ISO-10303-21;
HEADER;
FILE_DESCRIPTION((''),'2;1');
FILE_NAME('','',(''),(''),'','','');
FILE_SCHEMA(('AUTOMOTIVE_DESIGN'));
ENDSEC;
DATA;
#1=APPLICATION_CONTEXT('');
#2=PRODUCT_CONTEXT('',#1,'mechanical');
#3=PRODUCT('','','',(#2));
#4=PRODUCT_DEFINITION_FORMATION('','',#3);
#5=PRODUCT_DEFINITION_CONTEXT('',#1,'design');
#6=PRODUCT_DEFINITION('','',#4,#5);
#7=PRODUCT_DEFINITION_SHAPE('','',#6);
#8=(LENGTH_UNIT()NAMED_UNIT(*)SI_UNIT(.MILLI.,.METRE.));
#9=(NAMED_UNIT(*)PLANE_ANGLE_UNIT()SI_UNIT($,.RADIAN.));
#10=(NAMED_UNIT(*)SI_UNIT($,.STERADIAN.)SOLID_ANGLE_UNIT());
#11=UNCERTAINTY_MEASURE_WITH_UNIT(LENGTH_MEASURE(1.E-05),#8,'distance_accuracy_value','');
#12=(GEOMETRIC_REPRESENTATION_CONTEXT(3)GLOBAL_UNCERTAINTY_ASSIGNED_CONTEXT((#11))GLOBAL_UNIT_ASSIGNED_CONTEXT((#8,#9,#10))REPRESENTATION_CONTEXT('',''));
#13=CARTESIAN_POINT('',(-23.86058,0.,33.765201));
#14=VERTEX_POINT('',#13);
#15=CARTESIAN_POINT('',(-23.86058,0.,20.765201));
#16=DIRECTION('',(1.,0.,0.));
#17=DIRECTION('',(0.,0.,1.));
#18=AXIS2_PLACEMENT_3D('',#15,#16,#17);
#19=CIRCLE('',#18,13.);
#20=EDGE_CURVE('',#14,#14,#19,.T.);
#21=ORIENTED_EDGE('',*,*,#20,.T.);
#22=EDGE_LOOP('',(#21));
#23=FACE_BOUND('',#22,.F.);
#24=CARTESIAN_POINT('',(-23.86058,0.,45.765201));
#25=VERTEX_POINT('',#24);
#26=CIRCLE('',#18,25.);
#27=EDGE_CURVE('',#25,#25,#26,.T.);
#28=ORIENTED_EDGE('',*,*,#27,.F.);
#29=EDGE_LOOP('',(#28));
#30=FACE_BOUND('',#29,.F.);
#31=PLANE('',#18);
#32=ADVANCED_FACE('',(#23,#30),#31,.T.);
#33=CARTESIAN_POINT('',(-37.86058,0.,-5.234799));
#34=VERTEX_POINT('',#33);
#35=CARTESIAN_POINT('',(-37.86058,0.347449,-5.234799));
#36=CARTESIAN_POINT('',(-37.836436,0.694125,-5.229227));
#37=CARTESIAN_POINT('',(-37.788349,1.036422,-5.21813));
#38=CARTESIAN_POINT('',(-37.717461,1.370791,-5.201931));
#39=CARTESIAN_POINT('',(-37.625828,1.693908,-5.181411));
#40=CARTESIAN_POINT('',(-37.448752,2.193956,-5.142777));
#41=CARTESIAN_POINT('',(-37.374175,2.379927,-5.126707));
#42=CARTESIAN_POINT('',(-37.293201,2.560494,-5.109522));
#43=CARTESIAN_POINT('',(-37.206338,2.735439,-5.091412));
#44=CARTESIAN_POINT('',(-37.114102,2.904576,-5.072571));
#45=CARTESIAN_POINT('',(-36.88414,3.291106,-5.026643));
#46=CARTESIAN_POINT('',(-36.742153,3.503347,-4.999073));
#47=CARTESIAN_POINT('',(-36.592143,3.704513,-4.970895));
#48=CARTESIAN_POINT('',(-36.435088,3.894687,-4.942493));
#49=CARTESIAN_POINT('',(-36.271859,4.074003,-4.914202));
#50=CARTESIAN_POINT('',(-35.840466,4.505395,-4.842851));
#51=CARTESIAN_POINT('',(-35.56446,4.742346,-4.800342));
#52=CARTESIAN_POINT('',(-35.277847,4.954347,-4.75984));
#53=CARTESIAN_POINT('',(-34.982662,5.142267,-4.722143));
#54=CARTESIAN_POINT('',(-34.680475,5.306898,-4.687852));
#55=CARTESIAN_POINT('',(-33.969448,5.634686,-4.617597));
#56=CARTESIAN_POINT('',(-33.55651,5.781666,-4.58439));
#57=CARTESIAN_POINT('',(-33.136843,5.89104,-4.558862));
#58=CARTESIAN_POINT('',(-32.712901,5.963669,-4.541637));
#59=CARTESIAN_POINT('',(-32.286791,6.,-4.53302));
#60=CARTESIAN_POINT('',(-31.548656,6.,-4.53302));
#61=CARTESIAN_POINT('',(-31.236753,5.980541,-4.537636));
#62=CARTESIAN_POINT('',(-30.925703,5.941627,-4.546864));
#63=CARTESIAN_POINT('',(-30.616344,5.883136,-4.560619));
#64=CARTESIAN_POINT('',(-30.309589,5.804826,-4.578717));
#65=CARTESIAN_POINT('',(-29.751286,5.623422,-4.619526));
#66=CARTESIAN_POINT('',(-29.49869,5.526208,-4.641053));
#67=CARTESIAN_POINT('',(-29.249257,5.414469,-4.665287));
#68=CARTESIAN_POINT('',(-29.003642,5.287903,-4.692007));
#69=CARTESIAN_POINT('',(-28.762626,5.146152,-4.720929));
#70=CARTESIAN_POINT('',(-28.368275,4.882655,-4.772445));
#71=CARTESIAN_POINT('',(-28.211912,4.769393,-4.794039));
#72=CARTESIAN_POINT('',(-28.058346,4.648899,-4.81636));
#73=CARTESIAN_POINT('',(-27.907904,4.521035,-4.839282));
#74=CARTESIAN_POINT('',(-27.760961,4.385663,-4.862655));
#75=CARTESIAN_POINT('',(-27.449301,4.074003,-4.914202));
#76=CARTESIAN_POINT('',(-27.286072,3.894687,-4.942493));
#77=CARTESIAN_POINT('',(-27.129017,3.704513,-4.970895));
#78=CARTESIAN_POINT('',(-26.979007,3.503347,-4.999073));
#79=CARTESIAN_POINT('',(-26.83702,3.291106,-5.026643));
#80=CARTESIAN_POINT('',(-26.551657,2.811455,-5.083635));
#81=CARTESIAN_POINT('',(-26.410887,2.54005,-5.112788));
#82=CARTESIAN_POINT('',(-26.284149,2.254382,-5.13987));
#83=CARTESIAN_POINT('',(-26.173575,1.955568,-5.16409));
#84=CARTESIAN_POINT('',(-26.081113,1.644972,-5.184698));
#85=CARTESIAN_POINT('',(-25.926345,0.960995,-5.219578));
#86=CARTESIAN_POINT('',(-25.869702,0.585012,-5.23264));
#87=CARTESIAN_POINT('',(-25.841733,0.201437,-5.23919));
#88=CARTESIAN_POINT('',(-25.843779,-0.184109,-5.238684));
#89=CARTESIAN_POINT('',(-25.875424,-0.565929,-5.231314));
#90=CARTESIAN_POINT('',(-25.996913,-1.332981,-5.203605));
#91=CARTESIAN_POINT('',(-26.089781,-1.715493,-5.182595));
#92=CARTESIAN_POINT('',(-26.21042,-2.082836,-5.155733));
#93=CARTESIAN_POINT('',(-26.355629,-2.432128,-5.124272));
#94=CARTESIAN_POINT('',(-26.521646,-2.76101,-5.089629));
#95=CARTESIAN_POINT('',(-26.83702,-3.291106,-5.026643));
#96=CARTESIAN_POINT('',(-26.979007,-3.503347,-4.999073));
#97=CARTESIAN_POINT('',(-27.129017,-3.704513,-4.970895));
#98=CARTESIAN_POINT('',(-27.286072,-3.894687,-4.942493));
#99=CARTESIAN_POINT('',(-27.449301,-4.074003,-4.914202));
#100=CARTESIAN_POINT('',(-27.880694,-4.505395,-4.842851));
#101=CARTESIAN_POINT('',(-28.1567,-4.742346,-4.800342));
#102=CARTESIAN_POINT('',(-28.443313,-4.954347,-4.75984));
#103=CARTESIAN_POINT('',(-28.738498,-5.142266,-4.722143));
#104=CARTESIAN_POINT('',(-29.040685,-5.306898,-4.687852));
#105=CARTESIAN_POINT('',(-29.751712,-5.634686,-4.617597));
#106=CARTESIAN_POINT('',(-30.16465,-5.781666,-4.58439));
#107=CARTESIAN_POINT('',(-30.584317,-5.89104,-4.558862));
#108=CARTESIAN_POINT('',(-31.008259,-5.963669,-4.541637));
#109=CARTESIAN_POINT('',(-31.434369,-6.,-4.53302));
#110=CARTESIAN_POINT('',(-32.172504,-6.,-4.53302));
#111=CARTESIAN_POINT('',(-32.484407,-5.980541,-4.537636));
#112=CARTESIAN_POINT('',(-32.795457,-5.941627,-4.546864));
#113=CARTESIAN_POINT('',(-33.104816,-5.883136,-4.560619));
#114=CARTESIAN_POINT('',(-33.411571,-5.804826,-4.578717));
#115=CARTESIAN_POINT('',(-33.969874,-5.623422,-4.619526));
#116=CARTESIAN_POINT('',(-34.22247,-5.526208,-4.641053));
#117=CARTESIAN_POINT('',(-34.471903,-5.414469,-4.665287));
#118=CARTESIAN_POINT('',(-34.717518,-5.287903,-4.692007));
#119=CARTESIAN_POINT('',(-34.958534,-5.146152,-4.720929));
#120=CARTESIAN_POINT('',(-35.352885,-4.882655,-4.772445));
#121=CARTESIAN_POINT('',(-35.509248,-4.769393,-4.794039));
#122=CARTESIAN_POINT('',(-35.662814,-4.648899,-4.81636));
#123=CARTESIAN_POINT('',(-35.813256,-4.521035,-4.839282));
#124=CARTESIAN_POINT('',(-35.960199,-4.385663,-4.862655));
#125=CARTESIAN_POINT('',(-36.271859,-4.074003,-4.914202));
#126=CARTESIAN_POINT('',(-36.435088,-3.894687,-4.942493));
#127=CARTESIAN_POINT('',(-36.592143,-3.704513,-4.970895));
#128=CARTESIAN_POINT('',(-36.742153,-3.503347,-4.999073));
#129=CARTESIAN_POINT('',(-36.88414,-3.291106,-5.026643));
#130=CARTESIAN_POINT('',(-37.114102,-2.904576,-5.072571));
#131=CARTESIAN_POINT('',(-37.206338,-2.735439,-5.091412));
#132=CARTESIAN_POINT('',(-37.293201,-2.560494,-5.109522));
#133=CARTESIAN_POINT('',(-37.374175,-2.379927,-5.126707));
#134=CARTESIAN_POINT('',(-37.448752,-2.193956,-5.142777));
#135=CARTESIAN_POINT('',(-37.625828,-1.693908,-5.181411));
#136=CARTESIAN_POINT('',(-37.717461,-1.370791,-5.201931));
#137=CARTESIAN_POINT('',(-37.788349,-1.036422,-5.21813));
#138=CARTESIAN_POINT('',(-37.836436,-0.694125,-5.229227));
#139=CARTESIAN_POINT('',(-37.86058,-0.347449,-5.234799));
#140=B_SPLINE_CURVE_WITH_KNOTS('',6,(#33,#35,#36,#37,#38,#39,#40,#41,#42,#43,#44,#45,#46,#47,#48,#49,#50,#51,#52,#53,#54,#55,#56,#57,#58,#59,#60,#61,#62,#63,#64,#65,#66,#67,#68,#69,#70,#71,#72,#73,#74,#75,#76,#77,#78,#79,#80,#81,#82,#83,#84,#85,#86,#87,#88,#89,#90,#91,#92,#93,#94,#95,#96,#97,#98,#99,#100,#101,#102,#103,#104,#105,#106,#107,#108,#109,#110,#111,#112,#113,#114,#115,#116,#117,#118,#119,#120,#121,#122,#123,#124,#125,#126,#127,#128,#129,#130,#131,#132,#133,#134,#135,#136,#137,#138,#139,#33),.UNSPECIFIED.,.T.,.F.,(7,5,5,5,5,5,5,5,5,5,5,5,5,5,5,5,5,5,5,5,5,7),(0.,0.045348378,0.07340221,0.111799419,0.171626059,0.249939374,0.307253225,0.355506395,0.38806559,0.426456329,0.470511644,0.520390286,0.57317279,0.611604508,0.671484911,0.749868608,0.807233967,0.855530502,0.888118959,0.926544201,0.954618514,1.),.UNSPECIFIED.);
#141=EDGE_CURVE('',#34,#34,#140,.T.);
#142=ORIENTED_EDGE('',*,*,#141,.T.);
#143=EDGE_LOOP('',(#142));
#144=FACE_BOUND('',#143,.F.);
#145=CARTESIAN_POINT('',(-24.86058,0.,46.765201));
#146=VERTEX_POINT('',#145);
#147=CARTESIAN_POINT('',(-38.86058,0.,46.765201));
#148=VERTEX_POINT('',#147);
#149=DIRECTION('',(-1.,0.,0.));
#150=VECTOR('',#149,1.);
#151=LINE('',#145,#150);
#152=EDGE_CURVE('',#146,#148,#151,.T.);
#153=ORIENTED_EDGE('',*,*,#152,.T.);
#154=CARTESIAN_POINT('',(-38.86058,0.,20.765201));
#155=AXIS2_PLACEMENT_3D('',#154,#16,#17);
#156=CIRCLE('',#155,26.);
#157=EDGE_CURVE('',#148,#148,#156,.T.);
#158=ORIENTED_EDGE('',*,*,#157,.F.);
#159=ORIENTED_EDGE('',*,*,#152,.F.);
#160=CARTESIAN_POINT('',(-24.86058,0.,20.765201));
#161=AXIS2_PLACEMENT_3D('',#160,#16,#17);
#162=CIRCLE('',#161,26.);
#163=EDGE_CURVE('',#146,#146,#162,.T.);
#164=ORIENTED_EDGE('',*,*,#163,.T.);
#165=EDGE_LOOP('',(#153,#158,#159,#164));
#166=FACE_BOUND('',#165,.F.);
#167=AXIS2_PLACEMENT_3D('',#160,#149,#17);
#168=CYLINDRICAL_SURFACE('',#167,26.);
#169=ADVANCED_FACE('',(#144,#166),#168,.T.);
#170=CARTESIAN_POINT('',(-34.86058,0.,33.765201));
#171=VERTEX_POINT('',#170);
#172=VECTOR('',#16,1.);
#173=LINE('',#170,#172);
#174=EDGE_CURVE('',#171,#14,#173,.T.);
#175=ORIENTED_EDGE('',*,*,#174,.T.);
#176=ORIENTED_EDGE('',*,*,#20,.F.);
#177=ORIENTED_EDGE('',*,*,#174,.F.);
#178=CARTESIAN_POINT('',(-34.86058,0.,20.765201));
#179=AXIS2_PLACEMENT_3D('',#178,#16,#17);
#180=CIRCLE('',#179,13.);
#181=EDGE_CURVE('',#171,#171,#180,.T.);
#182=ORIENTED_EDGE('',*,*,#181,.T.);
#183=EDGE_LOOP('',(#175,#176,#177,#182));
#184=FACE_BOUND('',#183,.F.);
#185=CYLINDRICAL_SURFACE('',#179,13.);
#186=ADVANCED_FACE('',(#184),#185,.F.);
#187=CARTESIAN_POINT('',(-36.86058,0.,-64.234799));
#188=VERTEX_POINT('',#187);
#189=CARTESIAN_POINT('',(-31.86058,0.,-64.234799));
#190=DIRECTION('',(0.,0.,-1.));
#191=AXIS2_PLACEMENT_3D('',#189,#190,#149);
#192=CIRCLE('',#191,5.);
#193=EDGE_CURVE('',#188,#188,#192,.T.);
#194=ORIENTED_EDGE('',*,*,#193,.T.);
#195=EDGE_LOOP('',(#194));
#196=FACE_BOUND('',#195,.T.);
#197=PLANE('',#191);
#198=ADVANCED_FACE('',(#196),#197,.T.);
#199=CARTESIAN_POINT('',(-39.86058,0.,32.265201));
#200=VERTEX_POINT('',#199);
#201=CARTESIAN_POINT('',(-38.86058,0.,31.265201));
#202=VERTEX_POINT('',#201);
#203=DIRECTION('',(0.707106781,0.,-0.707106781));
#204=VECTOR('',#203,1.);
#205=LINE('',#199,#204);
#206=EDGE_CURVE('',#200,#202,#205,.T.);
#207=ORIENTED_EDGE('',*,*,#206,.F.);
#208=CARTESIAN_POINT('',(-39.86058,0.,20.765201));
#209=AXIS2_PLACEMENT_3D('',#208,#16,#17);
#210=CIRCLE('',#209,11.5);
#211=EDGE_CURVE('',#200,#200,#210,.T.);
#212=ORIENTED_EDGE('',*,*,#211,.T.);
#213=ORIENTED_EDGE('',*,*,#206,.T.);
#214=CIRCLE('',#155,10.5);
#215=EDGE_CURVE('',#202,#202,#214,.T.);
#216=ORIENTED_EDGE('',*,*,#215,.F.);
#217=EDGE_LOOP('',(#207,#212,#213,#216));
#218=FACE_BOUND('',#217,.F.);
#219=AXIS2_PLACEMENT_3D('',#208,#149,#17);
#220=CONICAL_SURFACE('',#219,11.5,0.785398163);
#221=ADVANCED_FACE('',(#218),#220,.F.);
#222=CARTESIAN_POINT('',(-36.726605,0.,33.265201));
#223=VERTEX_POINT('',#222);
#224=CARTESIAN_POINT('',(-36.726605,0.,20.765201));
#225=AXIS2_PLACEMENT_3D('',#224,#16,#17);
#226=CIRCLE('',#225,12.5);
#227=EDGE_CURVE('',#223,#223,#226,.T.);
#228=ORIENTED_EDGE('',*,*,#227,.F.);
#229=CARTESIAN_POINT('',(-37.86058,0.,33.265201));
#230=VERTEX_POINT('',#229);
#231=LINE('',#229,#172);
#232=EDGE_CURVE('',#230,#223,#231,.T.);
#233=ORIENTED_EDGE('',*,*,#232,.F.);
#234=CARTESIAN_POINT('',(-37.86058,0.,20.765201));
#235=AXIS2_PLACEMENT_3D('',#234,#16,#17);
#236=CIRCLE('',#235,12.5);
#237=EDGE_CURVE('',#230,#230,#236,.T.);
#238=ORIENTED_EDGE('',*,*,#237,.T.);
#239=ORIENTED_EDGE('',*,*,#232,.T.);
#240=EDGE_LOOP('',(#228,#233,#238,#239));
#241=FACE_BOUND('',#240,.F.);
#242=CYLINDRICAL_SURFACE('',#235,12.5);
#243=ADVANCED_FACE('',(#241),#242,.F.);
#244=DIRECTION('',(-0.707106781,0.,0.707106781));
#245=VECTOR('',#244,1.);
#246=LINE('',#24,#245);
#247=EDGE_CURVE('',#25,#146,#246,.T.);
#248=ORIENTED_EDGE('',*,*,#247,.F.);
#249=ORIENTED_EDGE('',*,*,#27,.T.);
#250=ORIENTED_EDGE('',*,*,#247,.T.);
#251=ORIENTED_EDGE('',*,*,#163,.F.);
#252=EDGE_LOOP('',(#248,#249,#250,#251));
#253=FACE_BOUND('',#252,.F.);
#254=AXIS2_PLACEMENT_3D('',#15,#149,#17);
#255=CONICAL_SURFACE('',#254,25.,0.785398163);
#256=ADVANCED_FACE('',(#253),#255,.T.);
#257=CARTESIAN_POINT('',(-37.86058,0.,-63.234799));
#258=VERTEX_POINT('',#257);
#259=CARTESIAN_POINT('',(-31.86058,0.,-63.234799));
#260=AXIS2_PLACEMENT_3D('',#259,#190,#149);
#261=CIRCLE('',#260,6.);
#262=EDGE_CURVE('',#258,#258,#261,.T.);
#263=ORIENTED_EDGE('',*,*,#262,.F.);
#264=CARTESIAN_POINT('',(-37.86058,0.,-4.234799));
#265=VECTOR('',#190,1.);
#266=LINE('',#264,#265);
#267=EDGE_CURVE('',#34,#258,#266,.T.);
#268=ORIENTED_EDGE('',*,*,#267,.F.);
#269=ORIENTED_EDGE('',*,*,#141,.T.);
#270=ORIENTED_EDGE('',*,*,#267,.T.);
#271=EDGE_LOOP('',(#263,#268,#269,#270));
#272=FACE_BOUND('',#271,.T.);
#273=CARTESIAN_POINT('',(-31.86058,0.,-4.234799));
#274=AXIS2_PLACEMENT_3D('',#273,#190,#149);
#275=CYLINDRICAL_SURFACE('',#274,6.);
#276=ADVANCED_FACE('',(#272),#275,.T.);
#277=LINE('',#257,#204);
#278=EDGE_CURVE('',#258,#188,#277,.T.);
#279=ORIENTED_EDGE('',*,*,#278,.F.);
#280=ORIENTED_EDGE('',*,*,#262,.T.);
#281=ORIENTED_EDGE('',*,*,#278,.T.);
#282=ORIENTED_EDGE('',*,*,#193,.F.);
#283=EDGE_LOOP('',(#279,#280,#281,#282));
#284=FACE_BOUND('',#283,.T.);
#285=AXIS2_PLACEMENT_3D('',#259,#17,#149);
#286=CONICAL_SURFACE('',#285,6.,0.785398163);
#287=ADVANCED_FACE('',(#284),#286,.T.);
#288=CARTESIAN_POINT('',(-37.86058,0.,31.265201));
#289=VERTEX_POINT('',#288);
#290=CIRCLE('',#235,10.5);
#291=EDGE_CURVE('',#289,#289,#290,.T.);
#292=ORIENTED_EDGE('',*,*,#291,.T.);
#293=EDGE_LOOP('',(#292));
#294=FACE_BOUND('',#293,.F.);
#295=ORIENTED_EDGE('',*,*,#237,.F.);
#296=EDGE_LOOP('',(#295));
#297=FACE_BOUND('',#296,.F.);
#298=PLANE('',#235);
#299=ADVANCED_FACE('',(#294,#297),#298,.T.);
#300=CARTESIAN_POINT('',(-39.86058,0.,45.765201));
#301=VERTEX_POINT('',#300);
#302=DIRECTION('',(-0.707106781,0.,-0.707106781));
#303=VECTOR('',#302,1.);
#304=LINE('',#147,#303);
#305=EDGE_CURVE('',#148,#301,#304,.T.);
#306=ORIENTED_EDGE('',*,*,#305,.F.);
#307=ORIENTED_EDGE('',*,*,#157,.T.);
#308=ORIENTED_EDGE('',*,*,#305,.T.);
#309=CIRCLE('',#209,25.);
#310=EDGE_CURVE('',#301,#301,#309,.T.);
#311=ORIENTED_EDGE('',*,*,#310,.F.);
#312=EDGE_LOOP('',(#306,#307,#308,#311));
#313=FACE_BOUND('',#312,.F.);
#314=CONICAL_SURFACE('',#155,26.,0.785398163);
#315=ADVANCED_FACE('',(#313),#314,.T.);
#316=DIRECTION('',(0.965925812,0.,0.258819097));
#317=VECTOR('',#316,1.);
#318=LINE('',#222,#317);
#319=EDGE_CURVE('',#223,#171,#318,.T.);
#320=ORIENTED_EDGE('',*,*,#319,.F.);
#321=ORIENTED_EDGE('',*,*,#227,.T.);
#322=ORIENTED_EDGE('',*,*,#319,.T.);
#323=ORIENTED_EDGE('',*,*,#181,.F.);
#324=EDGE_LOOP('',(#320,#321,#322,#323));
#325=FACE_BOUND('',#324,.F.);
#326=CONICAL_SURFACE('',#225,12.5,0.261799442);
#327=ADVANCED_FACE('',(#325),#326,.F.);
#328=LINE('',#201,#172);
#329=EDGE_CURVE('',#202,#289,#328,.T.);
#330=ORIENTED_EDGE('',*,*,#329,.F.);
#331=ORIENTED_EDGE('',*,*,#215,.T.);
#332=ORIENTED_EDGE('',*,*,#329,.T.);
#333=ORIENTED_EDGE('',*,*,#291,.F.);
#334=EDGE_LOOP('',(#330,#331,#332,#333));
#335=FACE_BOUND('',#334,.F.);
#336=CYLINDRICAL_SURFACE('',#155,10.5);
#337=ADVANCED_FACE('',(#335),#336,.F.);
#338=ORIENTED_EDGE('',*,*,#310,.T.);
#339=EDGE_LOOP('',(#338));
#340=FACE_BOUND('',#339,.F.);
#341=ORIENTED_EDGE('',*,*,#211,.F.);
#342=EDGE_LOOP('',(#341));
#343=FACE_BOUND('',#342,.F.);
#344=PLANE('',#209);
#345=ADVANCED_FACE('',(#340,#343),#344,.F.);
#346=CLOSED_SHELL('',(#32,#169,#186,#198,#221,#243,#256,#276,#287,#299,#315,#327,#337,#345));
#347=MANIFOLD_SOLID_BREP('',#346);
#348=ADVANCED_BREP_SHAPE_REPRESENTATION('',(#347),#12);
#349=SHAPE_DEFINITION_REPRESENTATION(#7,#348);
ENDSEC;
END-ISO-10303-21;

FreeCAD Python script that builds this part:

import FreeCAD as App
import Part
import Sketcher
Q = App.Units.Quantity


def add_polygon(sketch, points):
    """Adds a closed chain of lines whose ends are joined by coincident constraints."""
    first, n = sketch.GeometryCount, len(points)
    for a, b in zip(points, points[1:] + points[:1]):
        sketch.addGeometry(Part.LineSegment(App.Vector(*a, 0), App.Vector(*b, 0)), False)
    for i in range(n):
        sketch.addConstraint(Sketcher.Constraint("Coincident", first + i, 2, first + (i + 1) % n, 1))

doc = App.newDocument("Part")
body = doc.addObject("PartDesign::Body", "Body")

sketch1 = doc.addObject("Sketcher::SketchObject", "Sketch")
body.addObject(sketch1)
sketch1.AttachmentSupport = (doc.XZ_Plane, [""])
sketch1.MapMode = "FlatFace"
add_polygon(sketch1, [(-39.9, 45.8), (-39.9, 32.3), (-38.9, 31.3), (-37.9, 31.3), (-37.9, 33.3), (-36.7, 33.3), (-34.9, 33.8), (-23.9, 33.8), (-23.9, 45.8), (-24.9, 46.8), (-38.9, 46.8)])
sketch1.addGeometry(Part.LineSegment(App.Vector(-39.9, 20.8, 0), App.Vector(-23.9, 20.8, 0)), True)
sketch1.addConstraint([
    Sketcher.Constraint("Vertical", 0),
    Sketcher.Constraint("Horizontal", 2),
    Sketcher.Constraint("Vertical", 3),
    Sketcher.Constraint("Horizontal", 4),
    Sketcher.Constraint("Horizontal", 6),
    Sketcher.Constraint("Vertical", 7),
    Sketcher.Constraint("Horizontal", 9),
    Sketcher.Constraint("Horizontal", 11),
    Sketcher.Constraint("Parallel", 1, 8),
    Sketcher.Constraint("Perpendicular", 8, 10),
    Sketcher.Constraint("Horizontal", 7, 2, 10, 2),
    Sketcher.Constraint("Vertical", 1, 2, 9, 2),
    Sketcher.Constraint("Vertical", 10, 2, 11, 1),
    Sketcher.Constraint("Vertical", 7, 2, 11, 2),
    Sketcher.Constraint("Equal", 1, 8),
    Sketcher.Constraint("DistanceX", 2, 1, 2, 2, 1.0),
    Sketcher.Constraint("DistanceX", 6, 1, 6, 2, 11.0),
    Sketcher.Constraint("DistanceX", 9, 2, 9, 1, 14.0),
    Sketcher.Constraint("DistanceX", 11, 1, 11, 2, 16.0),
    Sketcher.Constraint("DistanceY", 3, 1, 3, 2, 2.0),
    Sketcher.Constraint("DistanceY", 7, 1, 7, 2, 12.0),
    Sketcher.Constraint("Angle", 5, Q("15.000003 deg")),
    Sketcher.Constraint("DistanceY", 0, 2, 0, 1, 13.5),
    Sketcher.Constraint("DistanceY", 11, 2, 6, 2, 13.0),
    Sketcher.Constraint("DistanceY", -1, 1, 0, 2, 32.265201),
    Sketcher.Constraint("DistanceX", 0, 2, -1, 1, 39.86058),
])
revolution = doc.addObject("PartDesign::Revolution", "Revolution")
body.addObject(revolution)
revolution.Profile = sketch1
revolution.ReferenceAxis = (sketch1, ["Axis0"])
revolution.Angle = 360

sketch2 = doc.addObject("Sketcher::SketchObject", "Sketch001")
body.addObject(sketch2)
sketch2.AttachmentSupport = (doc.XZ_Plane, [""])
sketch2.MapMode = "FlatFace"
add_polygon(sketch2, [(-37.9, -63.2), (-36.9, -64.2), (-31.9, -64.2), (-31.9, -4.2), (-37.9, -4.2)])
sketch2.addGeometry(Part.LineSegment(App.Vector(-31.9, -4.2, 0), App.Vector(-31.9, -64.2, 0)), True)
sketch2.addConstraint([
    Sketcher.Constraint("Horizontal", 1),
    Sketcher.Constraint("Vertical", 2),
    Sketcher.Constraint("Horizontal", 3),
    Sketcher.Constraint("Vertical", 4),
    Sketcher.Constraint("Vertical", 5),
    Sketcher.Constraint("Coincident", 5, 1, 2, 2),
    Sketcher.Constraint("Horizontal", 0, 2, 5, 2),
    Sketcher.Constraint("DistanceX", 1, 1, 1, 2, 5.0),
    Sketcher.Constraint("DistanceX", 3, 2, 3, 1, 6.0),
    Sketcher.Constraint("DistanceY", 2, 1, 2, 2, 60.0),
    Sketcher.Constraint("DistanceY", 4, 2, 4, 1, 59.0),
    Sketcher.Constraint("DistanceY", 0, 2, -1, 1, 64.234799),
    Sketcher.Constraint("DistanceX", 0, 2, -1, 1, 36.86058),
])
revolution2 = doc.addObject("PartDesign::Revolution", "Revolution001")
body.addObject(revolution2)
revolution2.Profile = sketch2
revolution2.ReferenceAxis = (sketch2, ["Axis0"])
revolution2.Angle = 360

doc.recompute()
